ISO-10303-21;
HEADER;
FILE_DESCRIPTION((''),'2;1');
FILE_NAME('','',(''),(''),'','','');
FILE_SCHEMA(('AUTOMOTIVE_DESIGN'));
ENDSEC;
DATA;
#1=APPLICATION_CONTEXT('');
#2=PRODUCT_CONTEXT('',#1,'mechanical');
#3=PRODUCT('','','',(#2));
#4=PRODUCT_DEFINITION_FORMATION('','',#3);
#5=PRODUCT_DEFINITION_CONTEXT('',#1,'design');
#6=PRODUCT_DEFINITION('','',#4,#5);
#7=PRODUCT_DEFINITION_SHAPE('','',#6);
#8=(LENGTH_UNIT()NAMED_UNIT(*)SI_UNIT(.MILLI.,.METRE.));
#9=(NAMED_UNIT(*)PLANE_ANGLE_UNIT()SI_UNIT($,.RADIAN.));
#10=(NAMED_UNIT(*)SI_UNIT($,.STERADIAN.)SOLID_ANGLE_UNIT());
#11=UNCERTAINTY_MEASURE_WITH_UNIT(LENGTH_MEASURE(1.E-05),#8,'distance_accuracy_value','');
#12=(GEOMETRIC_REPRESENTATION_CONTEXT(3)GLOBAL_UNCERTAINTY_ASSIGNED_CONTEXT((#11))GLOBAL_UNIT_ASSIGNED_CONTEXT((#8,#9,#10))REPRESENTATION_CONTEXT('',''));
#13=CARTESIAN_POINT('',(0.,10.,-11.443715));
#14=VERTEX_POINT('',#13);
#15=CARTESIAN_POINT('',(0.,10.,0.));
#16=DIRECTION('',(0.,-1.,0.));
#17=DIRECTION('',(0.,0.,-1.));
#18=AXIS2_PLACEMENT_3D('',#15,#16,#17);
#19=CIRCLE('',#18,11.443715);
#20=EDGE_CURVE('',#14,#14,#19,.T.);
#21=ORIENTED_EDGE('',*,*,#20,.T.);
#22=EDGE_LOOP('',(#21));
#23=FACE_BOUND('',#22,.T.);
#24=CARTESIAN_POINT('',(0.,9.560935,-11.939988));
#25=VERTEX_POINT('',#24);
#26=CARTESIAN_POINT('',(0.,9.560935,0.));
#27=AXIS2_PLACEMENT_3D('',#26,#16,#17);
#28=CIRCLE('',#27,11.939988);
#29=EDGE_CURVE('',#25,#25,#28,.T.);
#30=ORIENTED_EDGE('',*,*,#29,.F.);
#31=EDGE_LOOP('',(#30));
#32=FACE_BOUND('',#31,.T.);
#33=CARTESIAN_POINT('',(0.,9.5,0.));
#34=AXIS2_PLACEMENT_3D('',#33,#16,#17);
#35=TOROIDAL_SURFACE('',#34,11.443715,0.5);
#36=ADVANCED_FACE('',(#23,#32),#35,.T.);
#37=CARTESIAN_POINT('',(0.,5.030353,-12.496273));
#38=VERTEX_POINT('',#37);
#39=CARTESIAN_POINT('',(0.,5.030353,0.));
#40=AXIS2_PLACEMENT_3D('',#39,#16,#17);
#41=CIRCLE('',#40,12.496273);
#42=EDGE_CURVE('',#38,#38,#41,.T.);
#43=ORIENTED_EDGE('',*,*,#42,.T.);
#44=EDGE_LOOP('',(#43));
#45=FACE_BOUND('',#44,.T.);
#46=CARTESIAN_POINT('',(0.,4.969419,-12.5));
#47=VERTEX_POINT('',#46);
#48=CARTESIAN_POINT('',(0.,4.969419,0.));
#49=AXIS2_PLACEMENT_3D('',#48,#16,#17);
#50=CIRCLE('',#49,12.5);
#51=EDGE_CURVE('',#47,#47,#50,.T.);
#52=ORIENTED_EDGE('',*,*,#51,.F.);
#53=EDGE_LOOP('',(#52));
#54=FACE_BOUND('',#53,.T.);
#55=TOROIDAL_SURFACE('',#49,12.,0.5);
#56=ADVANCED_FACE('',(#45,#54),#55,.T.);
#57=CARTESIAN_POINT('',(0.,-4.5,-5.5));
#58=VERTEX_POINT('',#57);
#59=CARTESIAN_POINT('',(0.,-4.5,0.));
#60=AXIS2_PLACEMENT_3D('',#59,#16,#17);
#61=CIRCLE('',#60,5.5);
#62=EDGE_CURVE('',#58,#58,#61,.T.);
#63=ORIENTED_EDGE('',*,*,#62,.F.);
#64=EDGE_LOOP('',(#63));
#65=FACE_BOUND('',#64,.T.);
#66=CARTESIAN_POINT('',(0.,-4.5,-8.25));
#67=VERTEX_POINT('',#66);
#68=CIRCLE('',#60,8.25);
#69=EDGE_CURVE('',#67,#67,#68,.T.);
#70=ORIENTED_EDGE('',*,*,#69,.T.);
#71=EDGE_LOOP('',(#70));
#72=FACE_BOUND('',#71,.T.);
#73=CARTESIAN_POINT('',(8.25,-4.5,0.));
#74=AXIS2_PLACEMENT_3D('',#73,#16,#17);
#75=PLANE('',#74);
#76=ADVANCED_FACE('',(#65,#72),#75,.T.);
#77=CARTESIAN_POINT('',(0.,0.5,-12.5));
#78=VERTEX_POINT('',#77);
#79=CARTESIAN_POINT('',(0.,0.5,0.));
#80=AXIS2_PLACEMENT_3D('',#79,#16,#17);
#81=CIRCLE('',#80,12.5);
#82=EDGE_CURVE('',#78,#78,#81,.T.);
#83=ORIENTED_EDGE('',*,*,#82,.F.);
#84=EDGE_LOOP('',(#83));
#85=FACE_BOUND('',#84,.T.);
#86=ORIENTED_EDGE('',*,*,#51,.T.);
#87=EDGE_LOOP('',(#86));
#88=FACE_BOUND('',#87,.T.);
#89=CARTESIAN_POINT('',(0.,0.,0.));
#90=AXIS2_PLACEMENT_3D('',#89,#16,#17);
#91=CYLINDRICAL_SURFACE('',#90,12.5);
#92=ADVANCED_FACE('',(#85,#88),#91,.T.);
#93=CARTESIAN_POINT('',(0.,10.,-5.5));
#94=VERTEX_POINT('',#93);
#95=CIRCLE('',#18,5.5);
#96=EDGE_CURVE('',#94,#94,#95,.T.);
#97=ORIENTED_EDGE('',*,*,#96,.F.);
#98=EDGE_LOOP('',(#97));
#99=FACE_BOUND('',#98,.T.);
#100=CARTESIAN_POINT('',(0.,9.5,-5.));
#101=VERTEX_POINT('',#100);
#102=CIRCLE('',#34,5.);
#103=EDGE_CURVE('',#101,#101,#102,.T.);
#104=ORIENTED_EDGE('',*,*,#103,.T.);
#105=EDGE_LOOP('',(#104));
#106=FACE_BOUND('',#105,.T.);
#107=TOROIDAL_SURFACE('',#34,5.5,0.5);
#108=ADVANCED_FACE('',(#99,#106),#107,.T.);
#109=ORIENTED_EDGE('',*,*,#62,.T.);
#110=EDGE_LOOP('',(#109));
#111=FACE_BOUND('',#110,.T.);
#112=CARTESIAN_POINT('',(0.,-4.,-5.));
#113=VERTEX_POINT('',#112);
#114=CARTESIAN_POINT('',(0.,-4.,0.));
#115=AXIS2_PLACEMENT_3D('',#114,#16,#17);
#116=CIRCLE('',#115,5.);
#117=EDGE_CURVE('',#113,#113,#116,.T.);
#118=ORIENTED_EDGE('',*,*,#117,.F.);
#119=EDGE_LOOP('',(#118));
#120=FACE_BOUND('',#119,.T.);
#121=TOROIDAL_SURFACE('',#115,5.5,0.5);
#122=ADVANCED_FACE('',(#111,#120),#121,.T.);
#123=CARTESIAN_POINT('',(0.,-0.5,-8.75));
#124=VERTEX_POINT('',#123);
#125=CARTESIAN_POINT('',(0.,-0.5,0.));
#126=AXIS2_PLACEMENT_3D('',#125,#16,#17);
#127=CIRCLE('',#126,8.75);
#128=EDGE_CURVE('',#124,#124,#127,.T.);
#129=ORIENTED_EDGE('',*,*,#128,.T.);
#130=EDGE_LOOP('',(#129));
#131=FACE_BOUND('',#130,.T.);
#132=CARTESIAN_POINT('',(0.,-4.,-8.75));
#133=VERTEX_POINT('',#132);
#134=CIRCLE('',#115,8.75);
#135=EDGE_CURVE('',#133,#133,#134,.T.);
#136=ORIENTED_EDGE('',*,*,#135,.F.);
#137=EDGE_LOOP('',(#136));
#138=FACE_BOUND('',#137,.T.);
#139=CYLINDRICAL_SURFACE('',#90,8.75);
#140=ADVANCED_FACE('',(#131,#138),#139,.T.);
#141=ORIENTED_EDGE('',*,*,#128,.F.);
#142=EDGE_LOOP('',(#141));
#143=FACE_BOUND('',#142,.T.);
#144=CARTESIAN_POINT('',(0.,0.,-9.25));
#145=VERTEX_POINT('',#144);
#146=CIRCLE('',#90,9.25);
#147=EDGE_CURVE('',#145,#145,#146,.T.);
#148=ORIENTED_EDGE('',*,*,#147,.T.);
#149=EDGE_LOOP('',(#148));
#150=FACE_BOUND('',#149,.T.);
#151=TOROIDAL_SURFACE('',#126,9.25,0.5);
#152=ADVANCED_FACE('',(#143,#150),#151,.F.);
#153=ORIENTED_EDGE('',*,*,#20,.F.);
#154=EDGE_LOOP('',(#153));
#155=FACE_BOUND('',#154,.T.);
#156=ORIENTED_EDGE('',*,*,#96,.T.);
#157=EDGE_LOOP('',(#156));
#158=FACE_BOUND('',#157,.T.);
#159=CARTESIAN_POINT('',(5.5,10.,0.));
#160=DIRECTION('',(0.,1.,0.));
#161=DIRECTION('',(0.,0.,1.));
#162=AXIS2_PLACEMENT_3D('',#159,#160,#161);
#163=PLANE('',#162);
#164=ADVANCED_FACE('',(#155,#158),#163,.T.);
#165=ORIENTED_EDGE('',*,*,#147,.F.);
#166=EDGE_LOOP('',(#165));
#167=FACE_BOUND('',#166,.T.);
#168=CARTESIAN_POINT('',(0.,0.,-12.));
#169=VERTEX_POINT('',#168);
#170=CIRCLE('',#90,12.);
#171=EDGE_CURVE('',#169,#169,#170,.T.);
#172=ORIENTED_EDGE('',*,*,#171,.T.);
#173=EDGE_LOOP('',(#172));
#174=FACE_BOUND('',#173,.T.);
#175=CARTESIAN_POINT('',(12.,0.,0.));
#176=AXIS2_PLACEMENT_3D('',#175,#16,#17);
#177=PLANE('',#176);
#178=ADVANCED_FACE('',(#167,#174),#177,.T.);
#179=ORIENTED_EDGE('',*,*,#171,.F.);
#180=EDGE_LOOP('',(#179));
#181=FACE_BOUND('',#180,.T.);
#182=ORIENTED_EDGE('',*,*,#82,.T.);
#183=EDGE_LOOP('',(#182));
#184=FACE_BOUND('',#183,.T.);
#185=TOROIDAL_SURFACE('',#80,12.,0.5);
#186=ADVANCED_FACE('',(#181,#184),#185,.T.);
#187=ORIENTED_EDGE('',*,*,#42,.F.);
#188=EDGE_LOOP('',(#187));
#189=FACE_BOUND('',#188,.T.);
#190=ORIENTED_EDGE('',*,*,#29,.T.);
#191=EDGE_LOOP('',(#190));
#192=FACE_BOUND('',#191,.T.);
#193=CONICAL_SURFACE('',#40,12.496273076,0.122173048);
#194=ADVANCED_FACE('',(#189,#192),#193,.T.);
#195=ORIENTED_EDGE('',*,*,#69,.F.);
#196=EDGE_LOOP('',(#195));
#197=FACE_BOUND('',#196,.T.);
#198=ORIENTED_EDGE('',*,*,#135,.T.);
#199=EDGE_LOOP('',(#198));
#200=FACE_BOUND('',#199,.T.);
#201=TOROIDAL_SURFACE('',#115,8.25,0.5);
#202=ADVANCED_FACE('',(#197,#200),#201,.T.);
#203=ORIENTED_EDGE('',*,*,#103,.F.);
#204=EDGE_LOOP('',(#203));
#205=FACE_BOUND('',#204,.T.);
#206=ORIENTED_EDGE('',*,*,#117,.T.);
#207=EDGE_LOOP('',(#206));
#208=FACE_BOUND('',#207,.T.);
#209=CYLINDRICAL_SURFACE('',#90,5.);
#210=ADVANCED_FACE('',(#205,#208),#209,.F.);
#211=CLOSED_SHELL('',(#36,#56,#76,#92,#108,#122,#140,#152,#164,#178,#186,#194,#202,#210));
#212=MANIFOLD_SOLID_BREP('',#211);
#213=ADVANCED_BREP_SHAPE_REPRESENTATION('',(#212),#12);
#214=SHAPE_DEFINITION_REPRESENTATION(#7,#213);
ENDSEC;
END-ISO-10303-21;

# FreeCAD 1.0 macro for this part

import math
import FreeCAD as App
import Part
import Sketcher
from FreeCAD import Vector
Q = App.Units.Quantity

doc = App.newDocument("Part")
params = doc.addObject("Spreadsheet::Sheet", "Params")
for row, (alias, value) in enumerate([
    ("sketch1_radius", "0.5 mm"),
    ("sketch1_height", "13.5 mm"),
    ("sketch1_height2", "3.5 mm"),
    ("revolution_angle", "360 deg"),
], start=1):
    params.set(f"A{row}", alias)
    params.set(f"B{row}", "=" + value)
    params.setAlias(f"B{row}", alias)

body = doc.addObject("PartDesign::Body", "Body")

# Sketch on XY plane
sketch1 = body.newObject("Sketcher::SketchObject", "Sketch")
sketch1.AttachmentSupport = (doc.getObject("XY_Plane"), [""])
sketch1.MapMode = "FlatFace"
sketch1.addGeometry(Part.LineSegment(Vector(11.44, 10, 0), Vector(5.5, 10, 0)), False)
sketch1.addGeometry(Part.ArcOfCircle(Part.Circle(Vector(5.5, 9.5, 0), Vector(0, 0, 1), 0.5), math.radians(90), math.radians(180)), False)
sketch1.addGeometry(Part.LineSegment(Vector(5, 9.5, 0), Vector(5, -4, 0)), False)
sketch1.addGeometry(Part.ArcOfCircle(Part.Circle(Vector(5.5, -4, 0), Vector(0, 0, 1), 0.5), math.radians(180), math.radians(270)), False)
sketch1.addGeometry(Part.LineSegment(Vector(5.5, -4.5, 0), Vector(8.25, -4.5, 0)), False)
sketch1.addGeometry(Part.ArcOfCircle(Part.Circle(Vector(8.25, -4, 0), Vector(0, 0, 1), 0.5), math.radians(-90), math.radians(0)), False)
sketch1.addGeometry(Part.LineSegment(Vector(8.75, -4, 0), Vector(8.75, -0.5, 0)), False)
sketch1.addGeometry(Part.ArcOfCircle(Part.Circle(Vector(9.25, -0.5, 0), Vector(0, 0, 1), 0.5), math.radians(90), math.radians(180)), False)
sketch1.addGeometry(Part.LineSegment(Vector(9.25, 0, 0), Vector(12, 0, 0)), False)
sketch1.addGeometry(Part.ArcOfCircle(Part.Circle(Vector(12, 0.5, 0), Vector(0, 0, 1), 0.5), math.radians(-90), math.radians(0)), False)
sketch1.addGeometry(Part.LineSegment(Vector(12.5, 0.5, 0), Vector(12.5, 4.97, 0)), False)
sketch1.addGeometry(Part.ArcOfCircle(Part.Circle(Vector(12, 4.97, 0), Vector(0, 0, 1), 0.5), math.radians(0), math.radians(7)), False)
sketch1.addGeometry(Part.LineSegment(Vector(12.5, 5.03, 0), Vector(11.94, 9.56, 0)), False)
sketch1.addGeometry(Part.ArcOfCircle(Part.Circle(Vector(11.44, 9.5, 0), Vector(0, 0, 1), 0.5), math.radians(7), math.radians(90)), False)
sketch1.addConstraint(Sketcher.Constraint("Tangent", 0, 2, 1, 1))
sketch1.addConstraint(Sketcher.Constraint("Tangent", 1, 2, 2, 1))
sketch1.addConstraint(Sketcher.Constraint("Tangent", 2, 2, 3, 1))
sketch1.addConstraint(Sketcher.Constraint("Tangent", 3, 2, 4, 1))
sketch1.addConstraint(Sketcher.Constraint("Tangent", 4, 2, 5, 1))
sketch1.addConstraint(Sketcher.Constraint("Tangent", 5, 2, 6, 1))
sketch1.addConstraint(Sketcher.Constraint("Tangent", 6, 2, 7, 2))
sketch1.addConstraint(Sketcher.Constraint("Tangent", 7, 1, 8, 1))
sketch1.addConstraint(Sketcher.Constraint("Tangent", 8, 2, 9, 1))
sketch1.addConstraint(Sketcher.Constraint("Tangent", 9, 2, 10, 1))
sketch1.addConstraint(Sketcher.Constraint("Tangent", 10, 2, 11, 1))
sketch1.addConstraint(Sketcher.Constraint("Tangent", 11, 2, 12, 1))
sketch1.addConstraint(Sketcher.Constraint("Tangent", 12, 2, 13, 1))
sketch1.addConstraint(Sketcher.Constraint("Tangent", 13, 2, 0, 1))
sketch1.addConstraint(Sketcher.Constraint("Horizontal", 0))
sketch1.addConstraint(Sketcher.Constraint("Vertical", 2))
sketch1.addConstraint(Sketcher.Constraint("Horizontal", 4))
sketch1.addConstraint(Sketcher.Constraint("Vertical", 6))
sketch1.addConstraint(Sketcher.Constraint("Horizontal", 8))
sketch1.addConstraint(Sketcher.Constraint("Vertical", 10))
sketch1.addConstraint(Sketcher.Constraint("Equal", 1, 3))
sketch1.addConstraint(Sketcher.Constraint("Equal", 3, 5))
sketch1.addConstraint(Sketcher.Constraint("Equal", 5, 7))
sketch1.addConstraint(Sketcher.Constraint("Equal", 7, 9))
sketch1.addConstraint(Sketcher.Constraint("Equal", 9, 11))
sketch1.addConstraint(Sketcher.Constraint("Equal", 11, 13))
sketch1.addConstraint(Sketcher.Constraint("PointOnObject", 7, 1, -1))
sketch1.addConstraint(Sketcher.Constraint("Equal", 4, 8))
sketch1.addConstraint(Sketcher.Constraint("Radius", 1, Q("0.5 mm")))
sketch1.addConstraint(Sketcher.Constraint("Angle", 12, Q("97 deg")))
sketch1.addConstraint(Sketcher.Constraint("DistanceY", 2, 2, 2, 1, Q("13.5 mm")))
sketch1.addConstraint(Sketcher.Constraint("DistanceY", 6, 1, 6, 2, Q("3.5 mm")))
sketch1.addConstraint(Sketcher.Constraint("DistanceX", -1, 1, 9, 3, Q("12 mm")))
sketch1.addConstraint(Sketcher.Constraint("DistanceX", -1, 1, 1, 2, Q("5 mm")))
sketch1.addConstraint(Sketcher.Constraint("DistanceY", 10, 1, 10, 2, Q("4.469419 mm")))
sketch1.setExpression("Constraints[28]", "Params.sketch1_radius")
sketch1.setExpression("Constraints[30]", "Params.sketch1_height")
sketch1.setExpression("Constraints[31]", "Params.sketch1_height2")
revolution = body.newObject("PartDesign::Revolution", "Revolution")
revolution.Profile = sketch1
revolution.ReferenceAxis = (sketch1, ["V_Axis"])
revolution.setExpression("Angle", "Params.revolution_angle")

doc.recompute()
